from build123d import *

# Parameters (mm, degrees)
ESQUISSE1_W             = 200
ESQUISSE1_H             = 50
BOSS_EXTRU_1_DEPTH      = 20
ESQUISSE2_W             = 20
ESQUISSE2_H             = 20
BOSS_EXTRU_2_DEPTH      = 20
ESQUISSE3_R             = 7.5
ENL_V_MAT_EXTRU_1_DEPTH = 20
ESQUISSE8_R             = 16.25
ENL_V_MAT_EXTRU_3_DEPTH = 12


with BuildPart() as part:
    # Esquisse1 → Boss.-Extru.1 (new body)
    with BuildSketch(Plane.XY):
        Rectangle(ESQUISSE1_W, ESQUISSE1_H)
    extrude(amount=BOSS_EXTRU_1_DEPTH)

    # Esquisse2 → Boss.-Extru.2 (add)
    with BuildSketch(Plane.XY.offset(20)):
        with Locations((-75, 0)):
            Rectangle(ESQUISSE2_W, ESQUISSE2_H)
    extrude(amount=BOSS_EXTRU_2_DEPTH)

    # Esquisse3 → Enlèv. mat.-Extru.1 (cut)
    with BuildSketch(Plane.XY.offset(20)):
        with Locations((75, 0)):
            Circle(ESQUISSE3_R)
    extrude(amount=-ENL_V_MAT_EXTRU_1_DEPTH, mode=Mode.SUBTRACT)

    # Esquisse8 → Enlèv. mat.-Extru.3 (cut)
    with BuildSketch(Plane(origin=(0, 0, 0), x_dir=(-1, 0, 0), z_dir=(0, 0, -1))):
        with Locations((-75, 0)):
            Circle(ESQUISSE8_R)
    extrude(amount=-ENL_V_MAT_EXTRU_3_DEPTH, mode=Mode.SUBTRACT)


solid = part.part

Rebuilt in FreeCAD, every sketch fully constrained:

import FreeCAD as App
import Part
import Sketcher
from FreeCAD import Vector


def add_polygon(sketch, points):
    """Adds a closed chain of lines whose ends are joined by coincident constraints."""
    first, n = sketch.GeometryCount, len(points)
    for a, b in zip(points, points[1:] + points[:1]):
        sketch.addGeometry(Part.LineSegment(App.Vector(*a, 0), App.Vector(*b, 0)), False)
    for i in range(n):
        sketch.addConstraint(Sketcher.Constraint("Coincident", first + i, 2, first + (i + 1) % n, 1))

doc = App.newDocument("Part")
body = doc.addObject("PartDesign::Body", "Body")

# Sketch on XY plane
sketch1 = body.newObject("Sketcher::SketchObject", "Sketch")
sketch1.AttachmentSupport = (doc.getObject("XY_Plane"), [""])
sketch1.MapMode = "FlatFace"
add_polygon(sketch1, [(-100, 25), (-100, -25), (100, -25), (100, 25)])  # lines 0-3
sketch1.addConstraint([
    Sketcher.Constraint("Vertical", 0),
    Sketcher.Constraint("Horizontal", 1),
    Sketcher.Constraint("Vertical", 2),
    Sketcher.Constraint("Horizontal", 3),
    Sketcher.Constraint("Symmetric", 0, 2, 2, 2, -1, 1),
    Sketcher.Constraint("DistanceX", 1, 1, 1, 2, 200.0),
    Sketcher.Constraint("DistanceY", 0, 2, 0, 1, 50.0),
])
pad1 = body.newObject("PartDesign::Pad", "Pad")
pad1.Profile = sketch1
pad1.Length = 20

# Sketch on XY plane
sketch2 = body.newObject("Sketcher::SketchObject", "Sketch001")
sketch2.AttachmentSupport = (doc.getObject("XY_Plane"), [""])
sketch2.MapMode = "FlatFace"
sketch2.AttachmentOffset = App.Placement(Vector(0, 0, 20), App.Rotation())
add_polygon(sketch2, [(-85, 10), (-85, -10), (-65, -10), (-65, 10)])  # lines 0-3
sketch2.addConstraint([
    Sketcher.Constraint("Vertical", 0),
    Sketcher.Constraint("Horizontal", 1),
    Sketcher.Constraint("Vertical", 2),
    Sketcher.Constraint("Horizontal", 3),
    Sketcher.Constraint("Equal", 3, 0),
    Sketcher.Constraint("DistanceX", 1, 1, 1, 2, 20.0),
    Sketcher.Constraint("DistanceX", 0, 2, -1, 1, 85.0),
    Sketcher.Constraint("DistanceY", 0, 2, -1, 1, 10.0),
])
pad2 = body.newObject("PartDesign::Pad", "Pad001")
pad2.Profile = sketch2
pad2.Length = 20

# Sketch on XY plane
sketch3 = body.newObject("Sketcher::SketchObject", "Sketch002")
sketch3.AttachmentSupport = (doc.getObject("XY_Plane"), [""])
sketch3.MapMode = "FlatFace"
sketch3.AttachmentOffset = App.Placement(Vector(0, 0, 20), App.Rotation())
sketch3.addGeometry(Part.Circle(Vector(75, 0, 0), Vector(0, 0, 1), 8), False)
sketch3.addConstraint([
    Sketcher.Constraint("PointOnObject", 0, 3, -1),
    Sketcher.Constraint("Diameter", 0, 15.0),
    Sketcher.Constraint("DistanceX", -1, 1, 0, 3, 75.0),
])
pocket1 = body.newObject("PartDesign::Pocket", "Pocket")
pocket1.Profile = sketch3
pocket1.Length = 20

# Sketch on XY plane
sketch4 = body.newObject("Sketcher::SketchObject", "Sketch003")
sketch4.AttachmentSupport = (doc.getObject("XY_Plane"), [""])
sketch4.MapMode = "FlatFace"
sketch4.addGeometry(Part.Circle(Vector(75, 0, 0), Vector(0, 0, 1), 16), False)
sketch4.addConstraint([
    Sketcher.Constraint("PointOnObject", 0, 3, -1),
    Sketcher.Constraint("Diameter", 0, 32.5),
    Sketcher.Constraint("DistanceX", -1, 1, 0, 3, 75.0),
])
pocket2 = body.newObject("PartDesign::Pocket", "Pocket001")
pocket2.Profile = sketch4
pocket2.Length = 12
pocket2.Reversed = True

doc.recompute()
